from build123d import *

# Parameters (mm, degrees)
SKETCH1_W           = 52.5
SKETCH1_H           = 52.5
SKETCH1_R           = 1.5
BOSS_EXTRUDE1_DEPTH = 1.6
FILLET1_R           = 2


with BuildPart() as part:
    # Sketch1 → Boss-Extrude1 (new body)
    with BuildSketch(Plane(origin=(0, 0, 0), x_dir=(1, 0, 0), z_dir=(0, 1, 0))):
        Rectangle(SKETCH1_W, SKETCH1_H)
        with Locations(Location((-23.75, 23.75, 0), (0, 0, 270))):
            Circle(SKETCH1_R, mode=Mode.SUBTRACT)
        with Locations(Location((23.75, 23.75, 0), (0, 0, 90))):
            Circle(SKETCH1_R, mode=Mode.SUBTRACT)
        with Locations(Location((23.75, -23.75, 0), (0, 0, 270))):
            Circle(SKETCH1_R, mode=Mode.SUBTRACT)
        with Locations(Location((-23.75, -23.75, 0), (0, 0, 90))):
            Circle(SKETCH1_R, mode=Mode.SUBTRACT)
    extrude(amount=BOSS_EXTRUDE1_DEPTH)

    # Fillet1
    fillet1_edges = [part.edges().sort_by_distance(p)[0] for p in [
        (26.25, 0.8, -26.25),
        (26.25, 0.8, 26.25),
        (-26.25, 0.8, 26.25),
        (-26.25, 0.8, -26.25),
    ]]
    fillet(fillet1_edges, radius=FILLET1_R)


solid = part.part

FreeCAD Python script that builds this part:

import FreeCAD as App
import Part
import Sketcher


def edges_at(feature, points):
    """Names of the edges that pass closest to the given points."""
    edges = feature.Shape.Edges
    near = lambda p: min(range(len(edges)), key=lambda i: edges[i].distToShape(Part.Vertex(*p))[0])
    return sorted({f"Edge{near(p) + 1}" for p in points})


def add_polygon(sketch, points):
    """Adds a closed chain of lines whose ends are joined by coincident constraints."""
    first, n = sketch.GeometryCount, len(points)
    for a, b in zip(points, points[1:] + points[:1]):
        sketch.addGeometry(Part.LineSegment(App.Vector(*a, 0), App.Vector(*b, 0)), False)
    for i in range(n):
        sketch.addConstraint(Sketcher.Constraint("Coincident", first + i, 2, first + (i + 1) % n, 1))

doc = App.newDocument("Part")
body = doc.addObject("PartDesign::Body", "Body")

# Sketch on XZ plane
sketch1 = doc.addObject("Sketcher::SketchObject", "Sketch")
body.addObject(sketch1)
sketch1.AttachmentSupport = (doc.XZ_Plane, [""])
sketch1.MapMode = "FlatFace"
add_polygon(sketch1, [(-26.25, -26.25), (-26.25, 26.25), (26.25, 26.25), (26.25, -26.25)])  # lines 0-3
sketch1.addGeometry(Part.Circle(App.Vector(-23.75, 23.75, 0), App.Vector(0, 0, 1), 1.5), False)  # 4
sketch1.addGeometry(Part.Circle(App.Vector(23.75, 23.75, 0), App.Vector(0, 0, 1), 1.5), False)  # 5
sketch1.addGeometry(Part.Circle(App.Vector(-23.75, -23.75, 0), App.Vector(0, 0, 1), 1.5), False)  # 6
sketch1.addGeometry(Part.Circle(App.Vector(23.75, -23.75, 0), App.Vector(0, 0, 1), 1.5), False)  # 7
sketch1.addConstraint([
    Sketcher.Constraint("Vertical", 0),
    Sketcher.Constraint("Horizontal", 1),
    Sketcher.Constraint("Vertical", 2),
    Sketcher.Constraint("Horizontal", 3),
    Sketcher.Constraint("Equal", 4, 5),
    Sketcher.Constraint("Equal", 5, 6),
    Sketcher.Constraint("Equal", 6, 7),
    Sketcher.Constraint("Symmetric", 5, 3, 6, 3, -1, 1),
    Sketcher.Constraint("Symmetric", 4, 3, 7, 3, -1, 1),
    Sketcher.Constraint("Symmetric", 0, 2, 2, 2, -1, 1),
    Sketcher.Constraint("Symmetric", 4, 3, 5, 3, -2),
    Sketcher.Constraint("Equal", 3, 0),
    Sketcher.Constraint("Diameter", 4, 3.0),
    Sketcher.Constraint("DistanceX", 1, 1, 1, 2, 52.5),
    Sketcher.Constraint("DistanceX", 0, 2, 5, 3, 50.0),
    Sketcher.Constraint("DistanceY", 6, 3, 0, 2, 50.0),
])
pad1 = doc.addObject("PartDesign::Pad", "Pad")
body.addObject(pad1)
pad1.Profile = sketch1
pad1.Length = 1.6
pad1.Reversed = True
doc.recompute()

fillet = doc.addObject("PartDesign::Fillet", "Fillet")
body.addObject(fillet)
fillet.Base = (pad1, edges_at(pad1, [
    (26.25, 0.8, -26.25),
    (26.25, 0.8, 26.25),
    (-26.25, 0.8, 26.25),
    (-26.25, 0.8, -26.25),
]))
fillet.Radius = 2

doc.recompute()
